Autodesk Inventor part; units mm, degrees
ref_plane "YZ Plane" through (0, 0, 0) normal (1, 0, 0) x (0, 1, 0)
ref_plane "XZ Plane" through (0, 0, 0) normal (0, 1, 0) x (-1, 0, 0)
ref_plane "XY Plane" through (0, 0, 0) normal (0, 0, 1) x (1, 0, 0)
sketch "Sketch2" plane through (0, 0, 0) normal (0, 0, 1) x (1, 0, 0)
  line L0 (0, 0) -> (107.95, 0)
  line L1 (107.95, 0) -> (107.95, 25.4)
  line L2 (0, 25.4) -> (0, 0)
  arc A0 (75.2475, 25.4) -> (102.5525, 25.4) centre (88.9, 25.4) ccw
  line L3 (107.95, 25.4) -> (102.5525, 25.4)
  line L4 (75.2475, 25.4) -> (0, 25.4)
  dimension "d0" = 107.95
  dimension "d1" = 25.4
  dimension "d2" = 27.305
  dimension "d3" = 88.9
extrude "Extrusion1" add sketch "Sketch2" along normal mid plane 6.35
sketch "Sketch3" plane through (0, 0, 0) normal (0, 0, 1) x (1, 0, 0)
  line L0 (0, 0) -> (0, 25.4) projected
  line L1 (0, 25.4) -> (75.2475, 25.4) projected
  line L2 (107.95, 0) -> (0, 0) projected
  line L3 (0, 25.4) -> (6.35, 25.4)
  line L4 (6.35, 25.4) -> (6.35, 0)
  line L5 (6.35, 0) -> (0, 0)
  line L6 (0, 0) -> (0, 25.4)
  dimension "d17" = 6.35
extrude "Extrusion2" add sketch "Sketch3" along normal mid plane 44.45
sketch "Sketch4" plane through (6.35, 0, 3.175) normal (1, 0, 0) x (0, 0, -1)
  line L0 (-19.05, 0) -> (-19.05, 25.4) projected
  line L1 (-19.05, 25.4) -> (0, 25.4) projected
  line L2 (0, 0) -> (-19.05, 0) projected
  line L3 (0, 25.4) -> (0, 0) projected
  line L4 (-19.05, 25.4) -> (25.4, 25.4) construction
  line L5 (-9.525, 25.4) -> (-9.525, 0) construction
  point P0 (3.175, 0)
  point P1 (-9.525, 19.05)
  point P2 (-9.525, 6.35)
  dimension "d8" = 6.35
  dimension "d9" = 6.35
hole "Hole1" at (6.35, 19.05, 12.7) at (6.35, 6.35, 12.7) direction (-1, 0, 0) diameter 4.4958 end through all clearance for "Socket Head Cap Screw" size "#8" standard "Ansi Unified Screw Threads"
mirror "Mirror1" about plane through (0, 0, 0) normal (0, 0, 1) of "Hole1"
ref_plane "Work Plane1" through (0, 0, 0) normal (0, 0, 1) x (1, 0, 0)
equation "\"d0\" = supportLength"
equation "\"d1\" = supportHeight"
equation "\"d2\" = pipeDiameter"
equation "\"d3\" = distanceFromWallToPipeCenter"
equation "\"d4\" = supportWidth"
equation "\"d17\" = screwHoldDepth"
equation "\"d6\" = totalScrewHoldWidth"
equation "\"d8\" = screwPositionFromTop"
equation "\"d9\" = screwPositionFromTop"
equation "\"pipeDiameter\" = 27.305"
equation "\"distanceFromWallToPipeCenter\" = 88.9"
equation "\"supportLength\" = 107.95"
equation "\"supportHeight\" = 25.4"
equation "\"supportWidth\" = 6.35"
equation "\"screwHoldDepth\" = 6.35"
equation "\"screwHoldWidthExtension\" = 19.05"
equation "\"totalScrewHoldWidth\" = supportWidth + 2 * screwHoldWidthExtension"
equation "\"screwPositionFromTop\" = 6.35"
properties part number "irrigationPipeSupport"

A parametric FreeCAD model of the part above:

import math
import FreeCAD as App
import Part
import Sketcher
Q = App.Units.Quantity

doc = App.newDocument("Part")
body = doc.addObject("PartDesign::Body", "Body")

sketch1 = doc.addObject("Sketcher::SketchObject", "Sketch")
body.addObject(sketch1)
sketch1.AttachmentSupport = (doc.XY_Plane, [""])
sketch1.MapMode = "FlatFace"
sketch1.addGeometry([
    Part.LineSegment(App.Vector(0, 25, 0), App.Vector(0, 0, 0)),
    Part.LineSegment(App.Vector(0, 0, 0), App.Vector(108, 0, 0)),
    Part.LineSegment(App.Vector(108, 0, 0), App.Vector(108, 25, 0)),
    Part.LineSegment(App.Vector(108, 25, 0), App.Vector(103, 25, 0)),
    Part.ArcOfCircle(Part.Circle(App.Vector(89, 25, 0), App.Vector(0, 0, 1), 14), math.radians(180), math.radians(360)),
    Part.LineSegment(App.Vector(75, 25, 0), App.Vector(0, 25, 0)),
], False)
sketch1.addConstraint([
    Sketcher.Constraint("Coincident", 0, 2, 1, 1),
    Sketcher.Constraint("Coincident", 1, 2, 2, 1),
    Sketcher.Constraint("Coincident", 2, 2, 3, 1),
    Sketcher.Constraint("Coincident", 3, 2, 4, 2),
    Sketcher.Constraint("Coincident", 4, 1, 5, 1),
    Sketcher.Constraint("Coincident", 5, 2, 0, 1),
    Sketcher.Constraint("Vertical", 0),
    Sketcher.Constraint("Horizontal", 1),
    Sketcher.Constraint("Vertical", 2),
    Sketcher.Constraint("Horizontal", 3),
    Sketcher.Constraint("Horizontal", 5),
    Sketcher.Constraint("Coincident", 0, 2, -1, 1),
    Sketcher.Constraint("Horizontal", 4, 3, 2, 2),
    Sketcher.Constraint("Horizontal", 3, 2, 4, 1),
    Sketcher.Constraint("DistanceY", 0, 2, 0, 1, Q("1 in")),
    Sketcher.Constraint("DistanceX", 1, 1, 1, 2, Q("4.25 in")),
    Sketcher.Constraint("DistanceX", -1, 1, 4, 3, Q("3.5 in")),
    Sketcher.Constraint("Radius", 4, Q("0.5375 in")),
])
pad1 = doc.addObject("PartDesign::Pad", "Pad")
body.addObject(pad1)
pad1.Profile = sketch1
pad1.Length = Q("0.25 in")
pad1.Midplane = True

sketch2 = doc.addObject("Sketcher::SketchObject", "Sketch001")
body.addObject(sketch2)
sketch2.AttachmentSupport = (doc.XY_Plane, [""])
sketch2.MapMode = "FlatFace"
sketch2.addGeometry([
    Part.LineSegment(App.Vector(0, 25, 0), App.Vector(0, 0, 0)),
    Part.LineSegment(App.Vector(0, 0, 0), App.Vector(6, 0, 0)),
    Part.LineSegment(App.Vector(6, 0, 0), App.Vector(6, 25, 0)),
    Part.LineSegment(App.Vector(6, 25, 0), App.Vector(0, 25, 0)),
], False)
sketch2.addConstraint([
    Sketcher.Constraint("Coincident", 0, 2, 1, 1),
    Sketcher.Constraint("Coincident", 1, 2, 2, 1),
    Sketcher.Constraint("Coincident", 2, 2, 3, 1),
    Sketcher.Constraint("Coincident", 3, 2, 0, 1),
    Sketcher.Constraint("Vertical", 0),
    Sketcher.Constraint("Horizontal", 1),
    Sketcher.Constraint("Vertical", 2),
    Sketcher.Constraint("Horizontal", 3),
    Sketcher.Constraint("Coincident", 0, 2, -1, 1),
    Sketcher.Constraint("DistanceX", 1, 1, 1, 2, Q("0.25 in")),
    Sketcher.Constraint("DistanceY", 0, 2, 0, 1, Q("1 in")),
])
pad2 = doc.addObject("PartDesign::Pad", "Pad001")
body.addObject(pad2)
pad2.Profile = sketch2
pad2.Length = Q("1.75 in")
pad2.Midplane = True

sketch3 = doc.addObject("Sketcher::SketchObject", "Sketch002")
body.addObject(sketch3)
sketch3.AttachmentSupport = (doc.YZ_Plane, [""])
sketch3.MapMode = "FlatFace"
sketch3.AttachmentOffset = App.Placement(App.Vector(0, 0, 0.25 * 25.4), App.Rotation())
sketch3.addGeometry([
    Part.Circle(App.Vector(19.1, 12.7, 0), App.Vector(0, 0, 1), 2.2),
    Part.Circle(App.Vector(6.3, 12.7, 0), App.Vector(0, 0, 1), 2.2),
], False)
sketch3.addConstraint([
    Sketcher.Constraint("Equal", 0, 1),
    Sketcher.Constraint("Horizontal", 0, 3, 1, 3),
    Sketcher.Constraint("Diameter", 0, Q("0.177 in")),
    Sketcher.Constraint("DistanceY", -1, 1, 0, 3, Q("0.5 in")),
    Sketcher.Constraint("DistanceX", 1, 3, 0, 3, Q("0.5 in")),
    Sketcher.Constraint("DistanceX", -1, 1, 0, 3, Q("0.75 in")),
])
doc.recompute()
hole = doc.addObject("PartDesign::Hole", "Hole")
body.addObject(hole)
hole.Profile = sketch3
hole.ThreadType = "None"
hole.Diameter = Q("0.177 in")
hole.DepthType = "ThroughAll"
doc.recompute()

mirrored = doc.addObject("PartDesign::Mirrored", "Mirrored")
body.addObject(mirrored)
mirrored.Originals = [hole]
mirrored.MirrorPlane = (doc.XY_Plane, [""])
body.Tip = mirrored

doc.recompute()
